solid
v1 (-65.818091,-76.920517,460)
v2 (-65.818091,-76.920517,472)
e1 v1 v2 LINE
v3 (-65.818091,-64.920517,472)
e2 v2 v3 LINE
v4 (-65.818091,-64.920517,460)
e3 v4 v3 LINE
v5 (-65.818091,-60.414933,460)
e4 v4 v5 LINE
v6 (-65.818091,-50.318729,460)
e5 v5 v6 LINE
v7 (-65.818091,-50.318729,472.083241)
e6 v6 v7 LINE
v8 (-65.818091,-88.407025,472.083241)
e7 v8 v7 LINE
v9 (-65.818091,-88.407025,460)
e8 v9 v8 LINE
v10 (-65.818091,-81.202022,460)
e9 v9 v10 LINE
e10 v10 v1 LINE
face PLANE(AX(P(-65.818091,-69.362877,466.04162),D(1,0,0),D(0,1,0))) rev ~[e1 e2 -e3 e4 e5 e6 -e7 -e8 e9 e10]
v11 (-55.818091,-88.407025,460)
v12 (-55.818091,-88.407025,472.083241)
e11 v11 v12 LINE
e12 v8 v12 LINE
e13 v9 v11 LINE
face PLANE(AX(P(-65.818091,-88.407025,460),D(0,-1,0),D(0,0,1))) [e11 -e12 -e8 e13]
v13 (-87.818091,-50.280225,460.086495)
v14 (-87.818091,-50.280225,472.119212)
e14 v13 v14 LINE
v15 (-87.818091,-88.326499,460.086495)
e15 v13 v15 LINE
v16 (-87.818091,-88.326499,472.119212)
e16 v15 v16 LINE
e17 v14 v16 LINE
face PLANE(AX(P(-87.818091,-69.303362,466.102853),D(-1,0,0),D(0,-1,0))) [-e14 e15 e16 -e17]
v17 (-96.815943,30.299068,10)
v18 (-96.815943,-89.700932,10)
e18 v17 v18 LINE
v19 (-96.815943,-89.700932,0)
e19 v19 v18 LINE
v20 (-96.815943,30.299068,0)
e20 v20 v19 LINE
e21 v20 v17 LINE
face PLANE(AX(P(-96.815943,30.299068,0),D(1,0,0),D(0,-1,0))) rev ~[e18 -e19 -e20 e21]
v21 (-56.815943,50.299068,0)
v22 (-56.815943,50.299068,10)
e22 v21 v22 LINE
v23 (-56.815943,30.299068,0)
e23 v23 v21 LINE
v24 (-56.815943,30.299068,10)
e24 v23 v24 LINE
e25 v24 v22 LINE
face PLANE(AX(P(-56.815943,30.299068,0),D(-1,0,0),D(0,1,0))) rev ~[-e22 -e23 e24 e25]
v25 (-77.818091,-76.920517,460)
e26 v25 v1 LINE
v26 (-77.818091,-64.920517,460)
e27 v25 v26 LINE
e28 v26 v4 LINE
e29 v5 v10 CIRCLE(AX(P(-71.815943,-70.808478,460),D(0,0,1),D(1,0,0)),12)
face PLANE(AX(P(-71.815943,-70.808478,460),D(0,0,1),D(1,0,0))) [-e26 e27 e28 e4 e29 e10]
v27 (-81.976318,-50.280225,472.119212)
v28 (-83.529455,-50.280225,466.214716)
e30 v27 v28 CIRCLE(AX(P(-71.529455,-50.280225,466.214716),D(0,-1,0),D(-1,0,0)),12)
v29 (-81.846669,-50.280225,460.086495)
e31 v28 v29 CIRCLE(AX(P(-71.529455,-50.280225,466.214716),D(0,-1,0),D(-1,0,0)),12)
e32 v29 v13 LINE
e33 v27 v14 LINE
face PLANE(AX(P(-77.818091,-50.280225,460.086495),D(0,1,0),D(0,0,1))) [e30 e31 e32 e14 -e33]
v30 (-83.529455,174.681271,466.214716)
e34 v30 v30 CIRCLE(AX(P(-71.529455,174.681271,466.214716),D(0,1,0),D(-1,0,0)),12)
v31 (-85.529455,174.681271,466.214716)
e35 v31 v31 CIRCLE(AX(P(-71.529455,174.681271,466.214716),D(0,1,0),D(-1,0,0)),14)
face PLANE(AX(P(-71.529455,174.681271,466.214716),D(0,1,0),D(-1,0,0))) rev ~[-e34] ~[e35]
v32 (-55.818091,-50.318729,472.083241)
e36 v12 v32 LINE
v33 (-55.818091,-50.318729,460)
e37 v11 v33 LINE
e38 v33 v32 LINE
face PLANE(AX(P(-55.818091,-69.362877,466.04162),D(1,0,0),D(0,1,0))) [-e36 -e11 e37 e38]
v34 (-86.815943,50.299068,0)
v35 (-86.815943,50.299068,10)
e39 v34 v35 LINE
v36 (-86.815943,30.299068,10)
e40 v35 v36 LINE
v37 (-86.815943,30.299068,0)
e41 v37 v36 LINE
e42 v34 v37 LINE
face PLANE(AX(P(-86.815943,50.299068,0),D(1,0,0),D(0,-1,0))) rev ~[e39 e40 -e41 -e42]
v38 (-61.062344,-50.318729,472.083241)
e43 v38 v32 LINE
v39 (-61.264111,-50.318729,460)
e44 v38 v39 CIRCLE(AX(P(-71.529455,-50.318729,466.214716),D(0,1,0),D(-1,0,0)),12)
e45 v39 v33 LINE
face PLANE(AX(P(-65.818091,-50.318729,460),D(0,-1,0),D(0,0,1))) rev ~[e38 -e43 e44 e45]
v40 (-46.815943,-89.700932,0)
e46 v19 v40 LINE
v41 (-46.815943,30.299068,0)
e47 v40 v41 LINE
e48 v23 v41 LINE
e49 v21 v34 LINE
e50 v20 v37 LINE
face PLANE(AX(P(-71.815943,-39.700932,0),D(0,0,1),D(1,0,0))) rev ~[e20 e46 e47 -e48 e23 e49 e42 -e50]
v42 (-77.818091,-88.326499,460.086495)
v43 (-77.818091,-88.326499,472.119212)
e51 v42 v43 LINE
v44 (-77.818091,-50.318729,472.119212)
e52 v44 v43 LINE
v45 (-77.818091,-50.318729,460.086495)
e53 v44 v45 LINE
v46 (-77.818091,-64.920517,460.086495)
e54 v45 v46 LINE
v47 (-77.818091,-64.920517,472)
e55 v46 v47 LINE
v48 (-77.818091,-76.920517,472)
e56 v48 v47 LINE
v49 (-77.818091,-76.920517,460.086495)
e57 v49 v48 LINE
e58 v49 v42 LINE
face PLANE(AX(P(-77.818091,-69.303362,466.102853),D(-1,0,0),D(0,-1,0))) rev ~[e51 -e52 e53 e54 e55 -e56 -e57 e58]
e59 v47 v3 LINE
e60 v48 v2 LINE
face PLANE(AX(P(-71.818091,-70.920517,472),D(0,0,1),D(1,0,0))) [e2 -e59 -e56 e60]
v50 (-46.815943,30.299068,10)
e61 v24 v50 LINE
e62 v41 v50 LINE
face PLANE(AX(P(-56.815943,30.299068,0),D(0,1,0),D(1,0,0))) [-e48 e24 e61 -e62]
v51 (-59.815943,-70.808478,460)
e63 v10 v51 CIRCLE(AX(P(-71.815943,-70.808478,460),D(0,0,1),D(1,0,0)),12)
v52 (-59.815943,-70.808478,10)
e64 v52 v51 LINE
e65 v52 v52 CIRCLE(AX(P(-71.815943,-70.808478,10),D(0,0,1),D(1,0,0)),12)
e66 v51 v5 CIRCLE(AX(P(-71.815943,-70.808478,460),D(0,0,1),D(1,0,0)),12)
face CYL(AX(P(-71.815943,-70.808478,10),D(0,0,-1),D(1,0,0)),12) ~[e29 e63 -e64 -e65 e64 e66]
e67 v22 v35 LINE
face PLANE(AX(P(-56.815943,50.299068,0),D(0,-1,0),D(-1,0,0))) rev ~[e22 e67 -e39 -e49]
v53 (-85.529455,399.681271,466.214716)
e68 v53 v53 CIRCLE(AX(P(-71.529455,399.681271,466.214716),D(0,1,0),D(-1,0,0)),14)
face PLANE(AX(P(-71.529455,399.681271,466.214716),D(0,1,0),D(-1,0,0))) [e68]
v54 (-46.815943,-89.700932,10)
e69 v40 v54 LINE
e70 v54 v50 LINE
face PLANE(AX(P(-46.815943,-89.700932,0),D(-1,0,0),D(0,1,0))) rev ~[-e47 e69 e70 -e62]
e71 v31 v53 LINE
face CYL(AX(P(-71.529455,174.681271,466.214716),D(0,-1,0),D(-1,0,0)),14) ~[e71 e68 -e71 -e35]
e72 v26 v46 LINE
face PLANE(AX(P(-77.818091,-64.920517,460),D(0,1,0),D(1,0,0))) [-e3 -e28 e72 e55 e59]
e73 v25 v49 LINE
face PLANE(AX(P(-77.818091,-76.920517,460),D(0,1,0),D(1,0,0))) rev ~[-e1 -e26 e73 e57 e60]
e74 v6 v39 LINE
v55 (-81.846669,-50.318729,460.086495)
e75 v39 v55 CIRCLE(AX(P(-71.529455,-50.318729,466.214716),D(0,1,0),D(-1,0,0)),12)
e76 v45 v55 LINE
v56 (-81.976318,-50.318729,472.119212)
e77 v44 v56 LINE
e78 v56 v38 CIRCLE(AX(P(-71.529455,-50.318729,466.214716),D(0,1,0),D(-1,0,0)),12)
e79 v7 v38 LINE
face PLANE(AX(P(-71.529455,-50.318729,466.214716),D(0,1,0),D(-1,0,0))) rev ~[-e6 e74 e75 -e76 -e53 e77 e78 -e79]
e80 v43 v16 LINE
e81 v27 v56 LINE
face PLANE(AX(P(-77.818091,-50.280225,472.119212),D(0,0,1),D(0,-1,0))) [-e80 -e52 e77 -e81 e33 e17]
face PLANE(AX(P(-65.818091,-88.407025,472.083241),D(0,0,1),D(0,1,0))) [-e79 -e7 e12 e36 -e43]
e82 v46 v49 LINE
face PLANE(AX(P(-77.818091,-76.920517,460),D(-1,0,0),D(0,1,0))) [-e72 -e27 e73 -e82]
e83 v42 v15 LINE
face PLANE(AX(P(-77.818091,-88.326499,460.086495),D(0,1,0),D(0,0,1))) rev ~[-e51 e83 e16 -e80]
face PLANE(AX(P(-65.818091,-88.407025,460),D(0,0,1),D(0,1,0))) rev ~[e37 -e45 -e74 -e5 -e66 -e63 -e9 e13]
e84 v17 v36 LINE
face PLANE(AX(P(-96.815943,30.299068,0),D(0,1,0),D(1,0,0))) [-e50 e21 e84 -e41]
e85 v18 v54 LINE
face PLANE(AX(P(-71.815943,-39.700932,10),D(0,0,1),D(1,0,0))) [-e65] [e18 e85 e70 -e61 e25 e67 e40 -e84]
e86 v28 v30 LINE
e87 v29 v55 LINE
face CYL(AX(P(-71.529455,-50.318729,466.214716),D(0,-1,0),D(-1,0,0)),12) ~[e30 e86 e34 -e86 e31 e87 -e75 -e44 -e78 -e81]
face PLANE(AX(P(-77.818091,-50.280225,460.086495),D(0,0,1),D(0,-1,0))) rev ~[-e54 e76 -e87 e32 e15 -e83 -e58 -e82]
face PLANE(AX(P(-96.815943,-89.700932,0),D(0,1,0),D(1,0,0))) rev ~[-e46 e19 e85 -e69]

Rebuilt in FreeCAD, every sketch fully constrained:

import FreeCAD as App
import Part
import Sketcher

V = App.Vector

doc = App.newDocument("Part")
body = doc.addObject("PartDesign::Body", "Body")

sketch1 = body.newObject("Sketcher::SketchObject", "Sketch")
sketch1.AttachmentSupport = (doc.getObject("XY_Plane"), [""])
sketch1.MapMode = "FlatFace"
sketch1.addGeometry([
    Part.LineSegment(V(-97, -90, 0), V(-47, -90, 0)),
    Part.LineSegment(V(-47, -90, 0), V(-47, 30, 0)),
    Part.LineSegment(V(-47, 30, 0), V(-57, 30, 0)),
    Part.LineSegment(V(-57, 30, 0), V(-57, 50, 0)),
    Part.LineSegment(V(-57, 50, 0), V(-87, 50, 0)),
    Part.LineSegment(V(-87, 50, 0), V(-87, 30, 0)),
    Part.LineSegment(V(-87, 30, 0), V(-97, 30, 0)),
    Part.LineSegment(V(-97, 30, 0), V(-97, -90, 0)),
], False)
sketch1.addConstraint([
    Sketcher.Constraint("Coincident", 0, 2, 1, 1),
    Sketcher.Constraint("Coincident", 1, 2, 2, 1),
    Sketcher.Constraint("Coincident", 2, 2, 3, 1),
    Sketcher.Constraint("Coincident", 3, 2, 4, 1),
    Sketcher.Constraint("Coincident", 4, 2, 5, 1),
    Sketcher.Constraint("Coincident", 5, 2, 6, 1),
    Sketcher.Constraint("Coincident", 6, 2, 7, 1),
    Sketcher.Constraint("Coincident", 7, 2, 0, 1),
    Sketcher.Constraint("Horizontal", 0),
    Sketcher.Constraint("Vertical", 1),
    Sketcher.Constraint("Horizontal", 2),
    Sketcher.Constraint("Vertical", 3),
    Sketcher.Constraint("Horizontal", 4),
    Sketcher.Constraint("Vertical", 5),
    Sketcher.Constraint("Horizontal", 6),
    Sketcher.Constraint("Vertical", 7),
    Sketcher.Constraint("Horizontal", 2, 2, 5, 2),
    Sketcher.Constraint("Equal", 2, 6),
    Sketcher.Constraint("DistanceX", 0, 1, 0, 2, 50.0),
    Sketcher.Constraint("DistanceX", 2, 2, 2, 1, 10.0),
    Sketcher.Constraint("DistanceY", 1, 1, 1, 2, 120.0),
    Sketcher.Constraint("DistanceY", 3, 1, 3, 2, 20.0),
    Sketcher.Constraint("DistanceY", 0, 2, -1, 1, 89.700932),
    Sketcher.Constraint("DistanceX", 0, 2, -1, 1, 46.815943),
])
pad1 = body.newObject("PartDesign::Pad", "Pad")
pad1.Profile = sketch1
pad1.Length = 10

sketch2 = body.newObject("Sketcher::SketchObject", "Sketch001")
sketch2.AttachmentSupport = (doc.getObject("XY_Plane"), [""])
sketch2.MapMode = "FlatFace"
sketch2.AttachmentOffset = App.Placement(V(0, 0, 10), App.Rotation())
sketch2.addGeometry(Part.Circle(V(-72, -71, 0), V(0, 0, 1), 12), False)
sketch2.addConstraint([
    Sketcher.Constraint("Diameter", 0, 24.0),
    Sketcher.Constraint("DistanceX", 0, 3, -1, 1, 71.815943),
    Sketcher.Constraint("DistanceY", 0, 3, -1, 1, 70.808478),
])
pad2 = body.newObject("PartDesign::Pad", "Pad001")
pad2.Profile = sketch2
pad2.Length = 450

sketch3 = body.newObject("Sketcher::SketchObject", "Sketch002")
sketch3.AttachmentSupport = (doc.getObject("XY_Plane"), [""])
sketch3.MapMode = "FlatFace"
sketch3.AttachmentOffset = App.Placement(V(0, 0, 460), App.Rotation())
sketch3.addGeometry([
    Part.LineSegment(V(-78, -65, 0), V(-78, -77, 0)),
    Part.LineSegment(V(-78, -77, 0), V(-66, -77, 0)),
    Part.LineSegment(V(-66, -77, 0), V(-66, -65, 0)),
    Part.LineSegment(V(-66, -65, 0), V(-78, -65, 0)),
], False)
sketch3.addConstraint([
    Sketcher.Constraint("Coincident", 0, 2, 1, 1),
    Sketcher.Constraint("Coincident", 1, 2, 2, 1),
    Sketcher.Constraint("Coincident", 2, 2, 3, 1),
    Sketcher.Constraint("Coincident", 3, 2, 0, 1),
    Sketcher.Constraint("Vertical", 0),
    Sketcher.Constraint("Horizontal", 1),
    Sketcher.Constraint("Vertical", 2),
    Sketcher.Constraint("Horizontal", 3),
    Sketcher.Constraint("Equal", 3, 0),
    Sketcher.Constraint("DistanceX", 1, 1, 1, 2, 12.0),
    Sketcher.Constraint("DistanceX", 0, 2, -1, 1, 77.818091),
    Sketcher.Constraint("DistanceY", 0, 2, -1, 1, 76.920517),
])
pad3 = body.newObject("PartDesign::Pad", "Pad002")
pad3.Profile = sketch3
pad3.Length = 12

sketch4 = body.newObject("Sketcher::SketchObject", "Sketch003")
sketch4.AttachmentSupport = (doc.getObject("YZ_Plane"), [""])
sketch4.MapMode = "FlatFace"
sketch4.AttachmentOffset = App.Placement(V(0, 0, -65.818091), App.Rotation())
sketch4.addGeometry([
    Part.LineSegment(V(-88, 472, 0), V(-88, 460, 0)),
    Part.LineSegment(V(-88, 460, 0), V(-50, 460, 0)),
    Part.LineSegment(V(-50, 460, 0), V(-50, 472, 0)),
    Part.LineSegment(V(-50, 472, 0), V(-88, 472, 0)),
], False)
sketch4.addConstraint([
    Sketcher.Constraint("Coincident", 0, 2, 1, 1),
    Sketcher.Constraint("Coincident", 1, 2, 2, 1),
    Sketcher.Constraint("Coincident", 2, 2, 3, 1),
    Sketcher.Constraint("Coincident", 3, 2, 0, 1),
    Sketcher.Constraint("Vertical", 0),
    Sketcher.Constraint("Horizontal", 1),
    Sketcher.Constraint("Vertical", 2),
    Sketcher.Constraint("Horizontal", 3),
    Sketcher.Constraint("DistanceY", -1, 1, 0, 2, 460.0),
    Sketcher.Constraint("DistanceY", 0, 2, 0, 1, 12.083241),
    Sketcher.Constraint("DistanceX", 1, 1, 1, 2, 38.088296),
    Sketcher.Constraint("DistanceX", 1, 2, -1, 1, 50.318729),
])
pad4 = body.newObject("PartDesign::Pad", "Pad003")
pad4.Profile = sketch4
pad4.Length = 10

sketch5 = body.newObject("Sketcher::SketchObject", "Sketch004")
sketch5.AttachmentSupport = (doc.getObject("YZ_Plane"), [""])
sketch5.MapMode = "FlatFace"
sketch5.AttachmentOffset = App.Placement(V(0, 0, -77.818091), App.Rotation())
sketch5.addGeometry([
    Part.LineSegment(V(-50, 472, 0), V(-50, 460, 0)),
    Part.LineSegment(V(-50, 460, 0), V(-88, 460, 0)),
    Part.LineSegment(V(-88, 460, 0), V(-88, 472, 0)),
    Part.LineSegment(V(-88, 472, 0), V(-50, 472, 0)),
], False)
sketch5.addConstraint([
    Sketcher.Constraint("Coincident", 0, 2, 1, 1),
    Sketcher.Constraint("Coincident", 1, 2, 2, 1),
    Sketcher.Constraint("Coincident", 2, 2, 3, 1),
    Sketcher.Constraint("Coincident", 3, 2, 0, 1),
    Sketcher.Constraint("Vertical", 0),
    Sketcher.Constraint("Horizontal", 1),
    Sketcher.Constraint("Vertical", 2),
    Sketcher.Constraint("Horizontal", 3),
    Sketcher.Constraint("DistanceX", 1, 2, -1, 1, 88.326499),
    Sketcher.Constraint("DistanceX", 1, 2, 1, 1, 38.046274),
    Sketcher.Constraint("DistanceY", 0, 2, 0, 1, 12.032717),
    Sketcher.Constraint("DistanceY", -1, 1, 0, 2, 460.086495),
])
pad5 = body.newObject("PartDesign::Pad", "Pad004")
pad5.Profile = sketch5
pad5.Length = 10
pad5.Reversed = True

sketch6 = body.newObject("Sketcher::SketchObject", "Sketch005")
sketch6.AttachmentSupport = (doc.getObject("XZ_Plane"), [""])
sketch6.MapMode = "FlatFace"
sketch6.AttachmentOffset = App.Placement(V(0, 0, 50.318729), App.Rotation())
sketch6.addGeometry(Part.Circle(V(-72, 466, 0), V(0, 0, 1), 12), False)
sketch6.addConstraint([
    Sketcher.Constraint("Diameter", 0, 24.0),
    Sketcher.Constraint("DistanceX", 0, 3, -1, 1, 71.529455),
    Sketcher.Constraint("DistanceY", -1, 1, 0, 3, 466.214716),
])
pad6 = body.newObject("PartDesign::Pad", "Pad005")
pad6.Profile = sketch6
pad6.Length = 225
pad6.Reversed = True

sketch7 = body.newObject("Sketcher::SketchObject", "Sketch006")
sketch7.AttachmentSupport = (doc.getObject("XZ_Plane"), [""])
sketch7.MapMode = "FlatFace"
sketch7.AttachmentOffset = App.Placement(V(0, 0, -174.681271), App.Rotation())
sketch7.addGeometry(Part.Circle(V(-72, 466, 0), V(0, 0, 1), 14), False)
sketch7.addConstraint([
    Sketcher.Constraint("Diameter", 0, 28.0),
    Sketcher.Constraint("DistanceX", 0, 3, -1, 1, 71.529455),
    Sketcher.Constraint("DistanceY", -1, 1, 0, 3, 466.214716),
])
pad7 = body.newObject("PartDesign::Pad", "Pad006")
pad7.Profile = sketch7
pad7.Length = 225
pad7.Reversed = True

doc.recompute()
